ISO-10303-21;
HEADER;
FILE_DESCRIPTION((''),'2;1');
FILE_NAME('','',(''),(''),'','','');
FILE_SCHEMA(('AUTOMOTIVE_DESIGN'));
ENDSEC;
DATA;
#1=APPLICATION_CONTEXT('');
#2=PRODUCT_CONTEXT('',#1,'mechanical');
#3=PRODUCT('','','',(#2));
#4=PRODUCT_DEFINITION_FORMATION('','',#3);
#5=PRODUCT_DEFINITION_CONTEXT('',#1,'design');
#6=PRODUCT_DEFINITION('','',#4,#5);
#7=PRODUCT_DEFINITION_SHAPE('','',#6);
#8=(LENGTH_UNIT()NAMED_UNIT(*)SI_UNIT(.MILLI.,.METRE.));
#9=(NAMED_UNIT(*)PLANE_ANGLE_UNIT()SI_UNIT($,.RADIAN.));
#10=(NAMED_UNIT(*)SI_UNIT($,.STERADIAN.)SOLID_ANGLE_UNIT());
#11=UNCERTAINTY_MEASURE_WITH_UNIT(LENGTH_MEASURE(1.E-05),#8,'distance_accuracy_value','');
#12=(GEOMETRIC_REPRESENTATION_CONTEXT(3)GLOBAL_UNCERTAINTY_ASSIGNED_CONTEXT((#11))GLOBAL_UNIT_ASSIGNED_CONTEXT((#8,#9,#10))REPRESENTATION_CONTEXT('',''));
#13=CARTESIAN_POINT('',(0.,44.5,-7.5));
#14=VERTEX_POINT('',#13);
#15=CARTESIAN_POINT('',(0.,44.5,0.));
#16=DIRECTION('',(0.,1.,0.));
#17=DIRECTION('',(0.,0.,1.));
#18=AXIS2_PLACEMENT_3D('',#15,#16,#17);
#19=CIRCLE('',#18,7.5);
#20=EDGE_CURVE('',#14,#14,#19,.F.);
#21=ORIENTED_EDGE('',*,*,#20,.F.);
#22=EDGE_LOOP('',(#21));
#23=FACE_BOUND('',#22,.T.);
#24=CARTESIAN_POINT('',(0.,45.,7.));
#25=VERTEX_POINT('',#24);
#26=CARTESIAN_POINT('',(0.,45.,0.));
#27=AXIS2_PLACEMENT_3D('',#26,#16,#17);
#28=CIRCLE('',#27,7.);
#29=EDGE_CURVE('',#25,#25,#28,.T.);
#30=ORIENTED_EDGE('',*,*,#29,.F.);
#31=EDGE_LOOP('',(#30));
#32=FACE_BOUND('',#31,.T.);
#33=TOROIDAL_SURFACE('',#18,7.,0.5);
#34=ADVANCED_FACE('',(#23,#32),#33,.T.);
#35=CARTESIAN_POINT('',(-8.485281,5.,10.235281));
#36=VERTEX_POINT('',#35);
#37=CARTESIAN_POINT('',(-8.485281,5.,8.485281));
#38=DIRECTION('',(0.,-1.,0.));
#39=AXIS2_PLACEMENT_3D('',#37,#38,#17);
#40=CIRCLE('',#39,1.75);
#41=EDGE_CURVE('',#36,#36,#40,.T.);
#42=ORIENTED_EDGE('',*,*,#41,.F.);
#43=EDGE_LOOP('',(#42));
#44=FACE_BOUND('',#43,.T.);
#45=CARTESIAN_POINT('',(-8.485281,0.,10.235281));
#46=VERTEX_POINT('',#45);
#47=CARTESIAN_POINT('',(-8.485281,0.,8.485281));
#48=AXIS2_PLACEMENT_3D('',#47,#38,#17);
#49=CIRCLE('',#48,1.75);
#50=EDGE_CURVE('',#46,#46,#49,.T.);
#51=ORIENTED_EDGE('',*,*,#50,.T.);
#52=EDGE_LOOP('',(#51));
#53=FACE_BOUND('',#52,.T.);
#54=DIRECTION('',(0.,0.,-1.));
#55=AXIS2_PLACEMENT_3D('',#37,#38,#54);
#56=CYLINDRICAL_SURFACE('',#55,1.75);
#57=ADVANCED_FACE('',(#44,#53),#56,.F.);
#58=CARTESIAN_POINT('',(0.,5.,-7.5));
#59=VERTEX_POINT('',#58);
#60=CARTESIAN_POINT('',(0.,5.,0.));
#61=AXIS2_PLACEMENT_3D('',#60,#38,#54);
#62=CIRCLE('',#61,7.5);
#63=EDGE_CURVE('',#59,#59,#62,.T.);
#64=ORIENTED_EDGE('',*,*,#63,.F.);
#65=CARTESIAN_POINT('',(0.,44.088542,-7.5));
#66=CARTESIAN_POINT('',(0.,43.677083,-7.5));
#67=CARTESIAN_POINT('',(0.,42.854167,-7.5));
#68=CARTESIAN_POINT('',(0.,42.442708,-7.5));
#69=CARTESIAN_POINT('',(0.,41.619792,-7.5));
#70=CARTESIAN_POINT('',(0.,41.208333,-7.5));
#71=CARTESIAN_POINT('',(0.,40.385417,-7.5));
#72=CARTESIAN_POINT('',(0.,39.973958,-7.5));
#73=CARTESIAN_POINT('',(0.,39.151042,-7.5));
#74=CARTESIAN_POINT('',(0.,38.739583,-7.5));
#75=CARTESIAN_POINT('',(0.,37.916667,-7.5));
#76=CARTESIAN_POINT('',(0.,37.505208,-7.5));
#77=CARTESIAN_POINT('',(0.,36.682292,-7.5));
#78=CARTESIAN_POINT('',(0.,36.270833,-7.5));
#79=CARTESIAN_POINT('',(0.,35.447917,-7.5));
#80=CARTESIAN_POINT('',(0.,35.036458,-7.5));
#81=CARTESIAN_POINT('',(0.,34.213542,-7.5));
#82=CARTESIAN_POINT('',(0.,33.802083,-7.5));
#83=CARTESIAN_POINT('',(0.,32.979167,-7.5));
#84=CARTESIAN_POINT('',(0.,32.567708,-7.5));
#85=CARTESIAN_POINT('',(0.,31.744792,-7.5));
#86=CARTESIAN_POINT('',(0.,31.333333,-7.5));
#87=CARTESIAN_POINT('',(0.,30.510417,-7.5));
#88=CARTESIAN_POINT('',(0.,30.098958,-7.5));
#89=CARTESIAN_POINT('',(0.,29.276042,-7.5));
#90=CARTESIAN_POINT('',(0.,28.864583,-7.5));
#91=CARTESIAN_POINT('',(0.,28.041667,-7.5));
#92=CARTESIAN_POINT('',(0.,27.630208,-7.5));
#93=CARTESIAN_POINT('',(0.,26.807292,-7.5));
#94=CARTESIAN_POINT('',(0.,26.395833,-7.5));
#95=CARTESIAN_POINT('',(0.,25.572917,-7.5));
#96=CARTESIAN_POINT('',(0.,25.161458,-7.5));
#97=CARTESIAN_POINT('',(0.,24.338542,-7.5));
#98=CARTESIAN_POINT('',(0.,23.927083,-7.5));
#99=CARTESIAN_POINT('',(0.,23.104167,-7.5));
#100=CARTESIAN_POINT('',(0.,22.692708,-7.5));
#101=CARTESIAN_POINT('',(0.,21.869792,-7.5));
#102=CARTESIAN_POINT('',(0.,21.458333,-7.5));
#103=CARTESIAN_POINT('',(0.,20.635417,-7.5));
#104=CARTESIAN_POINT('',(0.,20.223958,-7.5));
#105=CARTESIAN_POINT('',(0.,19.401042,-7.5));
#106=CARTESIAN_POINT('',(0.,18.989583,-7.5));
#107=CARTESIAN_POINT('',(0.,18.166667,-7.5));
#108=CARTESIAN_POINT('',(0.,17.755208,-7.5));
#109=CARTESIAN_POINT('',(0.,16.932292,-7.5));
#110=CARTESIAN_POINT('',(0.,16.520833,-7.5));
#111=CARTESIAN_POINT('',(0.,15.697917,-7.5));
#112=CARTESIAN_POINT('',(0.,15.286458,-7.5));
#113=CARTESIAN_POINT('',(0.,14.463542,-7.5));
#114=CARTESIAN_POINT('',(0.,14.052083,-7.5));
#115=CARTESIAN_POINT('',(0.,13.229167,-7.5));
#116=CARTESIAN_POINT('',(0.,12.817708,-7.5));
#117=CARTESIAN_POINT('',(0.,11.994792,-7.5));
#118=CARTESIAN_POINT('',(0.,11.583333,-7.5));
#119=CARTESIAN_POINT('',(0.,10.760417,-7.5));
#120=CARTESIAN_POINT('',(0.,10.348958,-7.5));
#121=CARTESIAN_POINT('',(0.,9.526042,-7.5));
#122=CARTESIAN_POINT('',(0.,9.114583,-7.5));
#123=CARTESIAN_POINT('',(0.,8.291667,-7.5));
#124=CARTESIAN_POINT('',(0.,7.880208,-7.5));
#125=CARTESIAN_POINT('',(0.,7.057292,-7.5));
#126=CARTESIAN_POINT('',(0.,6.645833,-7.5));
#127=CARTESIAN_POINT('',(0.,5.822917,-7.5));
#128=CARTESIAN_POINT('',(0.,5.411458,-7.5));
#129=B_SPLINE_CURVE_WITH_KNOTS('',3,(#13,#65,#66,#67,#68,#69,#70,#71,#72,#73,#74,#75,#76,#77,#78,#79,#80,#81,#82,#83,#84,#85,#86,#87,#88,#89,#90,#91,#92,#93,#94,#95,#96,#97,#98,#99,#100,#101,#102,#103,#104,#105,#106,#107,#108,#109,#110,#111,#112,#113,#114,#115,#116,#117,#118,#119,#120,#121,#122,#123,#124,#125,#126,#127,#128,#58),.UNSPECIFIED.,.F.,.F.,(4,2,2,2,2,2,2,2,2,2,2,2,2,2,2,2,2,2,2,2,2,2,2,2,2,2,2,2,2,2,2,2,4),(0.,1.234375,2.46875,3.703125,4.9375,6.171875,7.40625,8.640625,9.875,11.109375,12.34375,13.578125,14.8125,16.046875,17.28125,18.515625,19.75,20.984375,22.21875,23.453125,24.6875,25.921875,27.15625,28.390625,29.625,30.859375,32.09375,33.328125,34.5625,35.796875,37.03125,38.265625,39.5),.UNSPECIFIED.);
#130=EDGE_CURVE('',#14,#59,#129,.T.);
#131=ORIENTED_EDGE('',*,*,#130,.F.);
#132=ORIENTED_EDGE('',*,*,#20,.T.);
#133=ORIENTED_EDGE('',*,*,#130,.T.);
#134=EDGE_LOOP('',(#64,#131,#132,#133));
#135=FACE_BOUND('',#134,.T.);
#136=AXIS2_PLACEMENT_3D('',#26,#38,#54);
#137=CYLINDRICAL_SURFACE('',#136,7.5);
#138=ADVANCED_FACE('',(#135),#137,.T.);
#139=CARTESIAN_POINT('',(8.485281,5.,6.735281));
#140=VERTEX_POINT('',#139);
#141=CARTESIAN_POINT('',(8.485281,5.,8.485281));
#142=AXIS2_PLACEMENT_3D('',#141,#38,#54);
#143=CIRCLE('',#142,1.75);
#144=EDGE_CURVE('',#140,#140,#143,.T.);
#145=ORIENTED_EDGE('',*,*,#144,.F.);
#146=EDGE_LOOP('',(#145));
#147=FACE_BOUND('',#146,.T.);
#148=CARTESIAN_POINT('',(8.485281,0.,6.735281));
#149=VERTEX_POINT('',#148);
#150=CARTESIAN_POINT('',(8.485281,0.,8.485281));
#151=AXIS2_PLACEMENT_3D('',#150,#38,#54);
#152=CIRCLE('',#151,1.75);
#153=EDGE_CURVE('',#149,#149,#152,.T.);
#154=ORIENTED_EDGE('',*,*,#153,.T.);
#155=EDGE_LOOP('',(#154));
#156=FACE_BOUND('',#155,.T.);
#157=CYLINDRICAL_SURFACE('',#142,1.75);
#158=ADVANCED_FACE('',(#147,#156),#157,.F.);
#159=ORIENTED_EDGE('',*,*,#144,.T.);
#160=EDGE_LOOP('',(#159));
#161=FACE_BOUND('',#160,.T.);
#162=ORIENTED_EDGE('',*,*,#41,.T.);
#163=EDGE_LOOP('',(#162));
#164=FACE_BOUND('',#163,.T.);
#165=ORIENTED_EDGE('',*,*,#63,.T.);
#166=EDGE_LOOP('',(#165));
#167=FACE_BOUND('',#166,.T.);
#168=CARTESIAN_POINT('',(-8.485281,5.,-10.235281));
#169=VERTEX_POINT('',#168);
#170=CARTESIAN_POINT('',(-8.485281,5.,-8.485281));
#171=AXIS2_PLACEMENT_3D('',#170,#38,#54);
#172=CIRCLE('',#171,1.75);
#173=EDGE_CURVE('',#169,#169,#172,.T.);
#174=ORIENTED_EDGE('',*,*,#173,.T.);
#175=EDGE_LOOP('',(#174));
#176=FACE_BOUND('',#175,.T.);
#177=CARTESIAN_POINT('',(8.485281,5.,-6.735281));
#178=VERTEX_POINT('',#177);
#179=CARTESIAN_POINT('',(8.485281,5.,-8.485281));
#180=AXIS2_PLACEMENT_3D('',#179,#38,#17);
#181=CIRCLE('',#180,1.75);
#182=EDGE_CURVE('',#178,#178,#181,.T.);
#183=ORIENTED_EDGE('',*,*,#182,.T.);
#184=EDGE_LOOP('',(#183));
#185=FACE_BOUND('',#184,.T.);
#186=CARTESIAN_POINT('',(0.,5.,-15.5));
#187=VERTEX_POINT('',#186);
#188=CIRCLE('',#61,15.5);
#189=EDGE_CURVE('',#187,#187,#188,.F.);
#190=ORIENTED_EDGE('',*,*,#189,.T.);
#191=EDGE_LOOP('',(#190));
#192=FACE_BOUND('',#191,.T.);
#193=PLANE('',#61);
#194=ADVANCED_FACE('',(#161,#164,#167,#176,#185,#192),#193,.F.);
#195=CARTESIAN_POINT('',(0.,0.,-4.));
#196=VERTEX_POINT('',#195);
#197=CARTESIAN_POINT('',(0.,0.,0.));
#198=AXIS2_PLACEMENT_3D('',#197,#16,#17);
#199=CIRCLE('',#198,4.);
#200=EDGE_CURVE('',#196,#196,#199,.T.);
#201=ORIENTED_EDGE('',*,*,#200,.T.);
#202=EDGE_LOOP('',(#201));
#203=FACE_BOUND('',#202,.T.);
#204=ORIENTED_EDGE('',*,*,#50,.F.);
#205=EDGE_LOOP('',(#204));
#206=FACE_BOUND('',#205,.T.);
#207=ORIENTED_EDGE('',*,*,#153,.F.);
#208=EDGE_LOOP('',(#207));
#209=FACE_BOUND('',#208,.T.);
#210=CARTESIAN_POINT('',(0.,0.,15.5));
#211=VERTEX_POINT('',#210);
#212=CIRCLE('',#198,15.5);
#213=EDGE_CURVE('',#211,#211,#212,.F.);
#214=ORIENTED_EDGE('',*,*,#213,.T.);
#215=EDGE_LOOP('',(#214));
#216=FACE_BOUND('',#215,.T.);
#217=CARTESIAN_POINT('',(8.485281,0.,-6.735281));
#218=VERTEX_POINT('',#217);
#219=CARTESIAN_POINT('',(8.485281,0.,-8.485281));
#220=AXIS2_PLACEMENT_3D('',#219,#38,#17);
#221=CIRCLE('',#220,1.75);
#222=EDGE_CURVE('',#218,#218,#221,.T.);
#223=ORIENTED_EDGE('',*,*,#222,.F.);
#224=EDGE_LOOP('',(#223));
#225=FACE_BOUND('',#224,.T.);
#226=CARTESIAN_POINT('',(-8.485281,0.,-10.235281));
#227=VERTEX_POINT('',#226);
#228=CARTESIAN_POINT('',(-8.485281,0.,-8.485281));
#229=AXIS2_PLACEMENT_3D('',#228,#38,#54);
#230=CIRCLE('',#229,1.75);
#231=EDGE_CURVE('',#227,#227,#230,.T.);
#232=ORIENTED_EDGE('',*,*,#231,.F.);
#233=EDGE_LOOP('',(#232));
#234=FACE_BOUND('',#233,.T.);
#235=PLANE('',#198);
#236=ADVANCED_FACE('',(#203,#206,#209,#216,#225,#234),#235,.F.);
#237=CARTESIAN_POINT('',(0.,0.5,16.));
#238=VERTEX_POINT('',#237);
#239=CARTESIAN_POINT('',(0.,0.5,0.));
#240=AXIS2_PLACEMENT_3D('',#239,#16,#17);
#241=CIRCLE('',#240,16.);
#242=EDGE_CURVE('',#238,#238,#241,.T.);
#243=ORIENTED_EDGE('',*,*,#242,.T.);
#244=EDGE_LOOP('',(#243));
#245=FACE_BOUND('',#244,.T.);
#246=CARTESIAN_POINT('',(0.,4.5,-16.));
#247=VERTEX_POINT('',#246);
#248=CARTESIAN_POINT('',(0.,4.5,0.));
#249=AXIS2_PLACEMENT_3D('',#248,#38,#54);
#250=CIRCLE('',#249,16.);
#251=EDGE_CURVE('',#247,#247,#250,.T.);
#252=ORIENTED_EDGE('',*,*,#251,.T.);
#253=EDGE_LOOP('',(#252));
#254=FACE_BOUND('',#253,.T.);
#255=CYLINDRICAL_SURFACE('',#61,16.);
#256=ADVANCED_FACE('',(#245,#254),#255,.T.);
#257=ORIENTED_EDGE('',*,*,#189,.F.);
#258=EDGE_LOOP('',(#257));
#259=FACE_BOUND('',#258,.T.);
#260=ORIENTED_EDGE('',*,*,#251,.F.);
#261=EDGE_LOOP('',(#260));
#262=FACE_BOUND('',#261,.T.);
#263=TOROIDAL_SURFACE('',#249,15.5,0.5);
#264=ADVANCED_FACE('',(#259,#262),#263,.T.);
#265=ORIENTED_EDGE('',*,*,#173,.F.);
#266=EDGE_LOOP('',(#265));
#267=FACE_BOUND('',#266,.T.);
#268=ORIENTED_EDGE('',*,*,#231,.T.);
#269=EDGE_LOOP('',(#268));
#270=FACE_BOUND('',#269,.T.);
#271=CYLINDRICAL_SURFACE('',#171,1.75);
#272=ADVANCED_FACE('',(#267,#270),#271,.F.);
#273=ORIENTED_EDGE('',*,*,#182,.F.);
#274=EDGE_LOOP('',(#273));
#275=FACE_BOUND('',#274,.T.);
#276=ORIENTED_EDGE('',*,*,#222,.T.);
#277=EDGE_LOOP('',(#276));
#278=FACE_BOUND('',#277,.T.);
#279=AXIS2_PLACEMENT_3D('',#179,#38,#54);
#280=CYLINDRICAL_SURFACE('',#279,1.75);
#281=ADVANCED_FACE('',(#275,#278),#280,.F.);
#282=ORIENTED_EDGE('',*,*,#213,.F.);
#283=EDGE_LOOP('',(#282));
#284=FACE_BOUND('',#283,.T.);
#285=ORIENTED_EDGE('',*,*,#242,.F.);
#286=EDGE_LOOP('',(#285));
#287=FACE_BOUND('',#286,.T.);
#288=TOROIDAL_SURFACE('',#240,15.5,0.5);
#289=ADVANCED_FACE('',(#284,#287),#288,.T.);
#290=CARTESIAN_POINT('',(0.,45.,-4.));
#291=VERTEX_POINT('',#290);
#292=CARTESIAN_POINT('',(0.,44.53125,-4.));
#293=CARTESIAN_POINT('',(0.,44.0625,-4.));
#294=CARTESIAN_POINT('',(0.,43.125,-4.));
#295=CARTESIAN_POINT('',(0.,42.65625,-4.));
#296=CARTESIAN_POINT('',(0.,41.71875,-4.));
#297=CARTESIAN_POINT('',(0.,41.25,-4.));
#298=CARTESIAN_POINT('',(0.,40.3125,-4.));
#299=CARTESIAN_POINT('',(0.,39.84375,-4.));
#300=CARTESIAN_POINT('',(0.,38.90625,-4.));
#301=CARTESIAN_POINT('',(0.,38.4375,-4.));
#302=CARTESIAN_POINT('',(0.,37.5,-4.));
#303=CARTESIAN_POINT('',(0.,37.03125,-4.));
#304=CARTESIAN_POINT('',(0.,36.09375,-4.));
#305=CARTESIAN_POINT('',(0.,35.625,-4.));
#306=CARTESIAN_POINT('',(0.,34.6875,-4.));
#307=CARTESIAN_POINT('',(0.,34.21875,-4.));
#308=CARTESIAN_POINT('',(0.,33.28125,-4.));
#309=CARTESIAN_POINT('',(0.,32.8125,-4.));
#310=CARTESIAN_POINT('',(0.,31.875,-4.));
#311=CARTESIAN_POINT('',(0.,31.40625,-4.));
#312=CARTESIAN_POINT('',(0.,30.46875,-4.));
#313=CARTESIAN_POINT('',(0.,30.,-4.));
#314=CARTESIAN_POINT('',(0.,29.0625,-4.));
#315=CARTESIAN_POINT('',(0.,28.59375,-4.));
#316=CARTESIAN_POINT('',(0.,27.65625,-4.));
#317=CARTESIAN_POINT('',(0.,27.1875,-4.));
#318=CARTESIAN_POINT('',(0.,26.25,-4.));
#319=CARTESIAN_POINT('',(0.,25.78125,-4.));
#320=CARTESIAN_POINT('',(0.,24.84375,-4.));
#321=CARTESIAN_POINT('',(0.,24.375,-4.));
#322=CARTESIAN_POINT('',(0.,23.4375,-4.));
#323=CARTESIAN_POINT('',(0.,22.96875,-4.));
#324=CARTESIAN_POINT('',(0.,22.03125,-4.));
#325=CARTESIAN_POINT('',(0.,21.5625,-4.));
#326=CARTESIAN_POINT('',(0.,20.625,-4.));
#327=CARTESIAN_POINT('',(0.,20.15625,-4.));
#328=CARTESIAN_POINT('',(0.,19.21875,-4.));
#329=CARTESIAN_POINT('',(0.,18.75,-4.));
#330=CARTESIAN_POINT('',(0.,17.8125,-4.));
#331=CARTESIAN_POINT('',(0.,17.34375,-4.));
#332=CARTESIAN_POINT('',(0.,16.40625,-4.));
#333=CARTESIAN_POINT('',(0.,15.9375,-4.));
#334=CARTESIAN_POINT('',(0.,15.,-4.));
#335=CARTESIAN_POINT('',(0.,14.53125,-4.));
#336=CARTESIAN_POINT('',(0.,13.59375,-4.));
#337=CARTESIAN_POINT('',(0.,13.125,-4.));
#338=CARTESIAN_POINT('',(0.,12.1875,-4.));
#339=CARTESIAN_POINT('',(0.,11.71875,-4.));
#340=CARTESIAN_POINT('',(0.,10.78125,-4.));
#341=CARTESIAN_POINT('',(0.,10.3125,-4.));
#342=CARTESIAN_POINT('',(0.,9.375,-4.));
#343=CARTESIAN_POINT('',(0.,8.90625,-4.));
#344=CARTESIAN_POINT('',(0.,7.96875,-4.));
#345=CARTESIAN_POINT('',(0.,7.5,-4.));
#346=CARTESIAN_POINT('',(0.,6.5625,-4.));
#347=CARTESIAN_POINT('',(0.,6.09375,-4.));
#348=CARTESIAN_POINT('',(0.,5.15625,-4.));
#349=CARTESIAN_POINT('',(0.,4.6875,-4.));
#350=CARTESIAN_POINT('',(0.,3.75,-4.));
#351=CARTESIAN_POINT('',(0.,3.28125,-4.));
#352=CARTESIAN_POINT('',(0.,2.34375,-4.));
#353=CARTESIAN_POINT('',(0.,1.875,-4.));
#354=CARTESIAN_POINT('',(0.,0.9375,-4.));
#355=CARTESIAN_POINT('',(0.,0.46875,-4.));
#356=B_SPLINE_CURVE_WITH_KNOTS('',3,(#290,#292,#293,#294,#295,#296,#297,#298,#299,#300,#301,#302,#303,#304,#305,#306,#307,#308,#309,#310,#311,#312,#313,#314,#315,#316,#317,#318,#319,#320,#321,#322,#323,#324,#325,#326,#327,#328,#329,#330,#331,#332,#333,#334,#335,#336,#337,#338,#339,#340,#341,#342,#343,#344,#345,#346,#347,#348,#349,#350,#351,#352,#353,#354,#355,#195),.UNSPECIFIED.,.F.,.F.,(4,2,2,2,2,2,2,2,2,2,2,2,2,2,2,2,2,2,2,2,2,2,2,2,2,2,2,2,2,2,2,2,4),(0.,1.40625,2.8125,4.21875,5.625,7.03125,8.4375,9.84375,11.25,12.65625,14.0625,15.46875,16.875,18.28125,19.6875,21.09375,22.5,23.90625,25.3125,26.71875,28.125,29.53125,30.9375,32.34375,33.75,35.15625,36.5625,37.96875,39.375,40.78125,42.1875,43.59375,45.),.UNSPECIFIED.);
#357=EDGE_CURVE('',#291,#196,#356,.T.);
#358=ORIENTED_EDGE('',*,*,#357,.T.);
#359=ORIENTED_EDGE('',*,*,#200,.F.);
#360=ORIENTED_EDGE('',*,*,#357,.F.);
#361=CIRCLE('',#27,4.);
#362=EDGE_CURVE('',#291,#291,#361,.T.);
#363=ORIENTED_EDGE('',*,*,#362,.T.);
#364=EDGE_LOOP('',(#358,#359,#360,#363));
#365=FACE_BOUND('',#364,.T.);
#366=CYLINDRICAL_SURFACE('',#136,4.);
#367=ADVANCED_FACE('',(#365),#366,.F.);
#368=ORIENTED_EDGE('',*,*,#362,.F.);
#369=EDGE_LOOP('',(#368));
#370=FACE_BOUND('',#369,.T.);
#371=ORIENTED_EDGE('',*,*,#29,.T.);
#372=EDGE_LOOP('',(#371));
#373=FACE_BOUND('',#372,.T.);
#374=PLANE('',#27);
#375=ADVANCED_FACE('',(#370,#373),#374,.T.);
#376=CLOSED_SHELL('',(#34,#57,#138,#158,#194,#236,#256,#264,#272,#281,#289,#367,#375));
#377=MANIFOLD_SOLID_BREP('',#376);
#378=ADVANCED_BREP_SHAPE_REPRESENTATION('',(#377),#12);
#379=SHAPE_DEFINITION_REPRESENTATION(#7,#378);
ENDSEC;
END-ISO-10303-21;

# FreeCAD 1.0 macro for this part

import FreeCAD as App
import Part
import Sketcher

V = App.Vector


def edges_at(feature, points):
    """Names of the edges that pass closest to the given points."""
    edges = feature.Shape.Edges
    near = lambda p: min(range(len(edges)), key=lambda i: edges[i].distToShape(Part.Vertex(*p))[0])
    return sorted({f"Edge{near(p) + 1}" for p in points})

doc = App.newDocument("Part")
body = doc.addObject("PartDesign::Body", "Body")

sketch1 = body.newObject("Sketcher::SketchObject", "Sketch")
sketch1.AttachmentSupport = (doc.getObject("XZ_Plane"), [""])
sketch1.MapMode = "FlatFace"
sketch1.addGeometry([
    Part.Circle(V(0, 0, 0), V(0, 0, 1), 7.5),
    Part.Circle(V(0, 0, 0), V(0, 0, 1), 4),
], False)
sketch1.addConstraint([
    Sketcher.Constraint("Coincident", 0, 3, -1, 1),
    Sketcher.Constraint("Coincident", 1, 3, -1, 1),
    Sketcher.Constraint("Diameter", 0, 15.0),
    Sketcher.Constraint("Diameter", 1, 8.0),
])
pad1 = body.newObject("PartDesign::Pad", "Pad")
pad1.Profile = sketch1
pad1.Length = 45
pad1.Reversed = True

sketch2 = body.newObject("Sketcher::SketchObject", "Sketch001")
sketch2.AttachmentSupport = (doc.getObject("XZ_Plane"), [""])
sketch2.MapMode = "FlatFace"
sketch2.addGeometry([
    Part.Circle(V(0, 0, 0), V(0, 0, 1), 16),
    Part.Circle(V(-8.5, 8.5, 0), V(0, 0, 1), 1.8),
    Part.Circle(V(-8.5, -8.5, 0), V(0, 0, 1), 1.8),
    Part.Circle(V(0, 0, 0), V(0, 0, 1), 7.5),
    Part.Circle(V(8.5, 8.5, 0), V(0, 0, 1), 1.8),
    Part.Circle(V(8.5, -8.5, 0), V(0, 0, 1), 1.8),
], False)
sketch2.addConstraint([
    Sketcher.Constraint("Coincident", 0, 3, -1, 1),
    Sketcher.Constraint("Coincident", 3, 3, -1, 1),
    Sketcher.Constraint("Equal", 1, 2),
    Sketcher.Constraint("Equal", 2, 4),
    Sketcher.Constraint("Equal", 4, 5),
    Sketcher.Constraint("Symmetric", 2, 3, 4, 3, -1, 1),
    Sketcher.Constraint("Symmetric", 1, 3, 5, 3, -1, 1),
    Sketcher.Constraint("Symmetric", 1, 3, 4, 3, -2),
    Sketcher.Constraint("Diameter", 0, 32.0),
    Sketcher.Constraint("Diameter", 3, 15.0),
    Sketcher.Constraint("Diameter", 1, 3.5),
    Sketcher.Constraint("DistanceX", 1, 3, -1, 1, 8.485281),
    Sketcher.Constraint("DistanceY", -1, 1, 1, 3, 8.485281),
])
pad2 = body.newObject("PartDesign::Pad", "Pad001")
pad2.Profile = sketch2
pad2.Length = 5
pad2.Reversed = True
doc.recompute()

fillet = body.newObject("PartDesign::Fillet", "Fillet")
fillet.Base = (pad2, edges_at(pad2, [(0, 5, 16), (0, 0, 16), (0, 45, 7.5)]))
fillet.Radius = 0.5

doc.recompute()
